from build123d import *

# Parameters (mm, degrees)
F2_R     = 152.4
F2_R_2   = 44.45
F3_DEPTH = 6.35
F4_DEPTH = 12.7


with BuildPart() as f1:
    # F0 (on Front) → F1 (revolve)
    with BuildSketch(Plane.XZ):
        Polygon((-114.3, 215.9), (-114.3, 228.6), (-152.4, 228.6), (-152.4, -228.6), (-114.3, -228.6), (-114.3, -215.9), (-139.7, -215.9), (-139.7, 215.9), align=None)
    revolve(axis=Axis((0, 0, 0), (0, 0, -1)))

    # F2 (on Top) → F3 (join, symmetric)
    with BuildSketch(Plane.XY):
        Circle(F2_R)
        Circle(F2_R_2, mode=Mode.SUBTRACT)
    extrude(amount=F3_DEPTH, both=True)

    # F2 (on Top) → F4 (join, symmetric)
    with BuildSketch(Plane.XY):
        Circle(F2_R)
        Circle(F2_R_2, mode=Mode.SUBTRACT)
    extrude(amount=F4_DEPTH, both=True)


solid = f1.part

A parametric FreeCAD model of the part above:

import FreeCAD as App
import Part
import Sketcher
from FreeCAD import Vector
Q = App.Units.Quantity

doc = App.newDocument("Part")
params = doc.addObject("Spreadsheet::Sheet", "Params")
for row, (alias, value) in enumerate([
    ("sketch1_width", "1 in"),
    ("sketch1_height", "18 in"),
    ("sketch1_height2", "17 in"),
    ("sketch1_width2", "1.5 in"),
    ("revolution_angle", "360 deg"),
    ("sketch2_diameter", "12 in"),
    ("sketch2_diameter2", "3.5 in"),
    ("pad1_length", "0.5 in"),
    ("sketch3_diameter", "12 in"),
    ("sketch3_diameter2", "3.5 in"),
    ("pad2_length", "1 in"),
], start=1):
    params.set(f"A{row}", alias)
    params.set(f"B{row}", "=" + value)
    params.setAlias(f"B{row}", alias)

body = doc.addObject("PartDesign::Body", "Body")

sketch1 = body.newObject("Sketcher::SketchObject", "Sketch")
sketch1.AttachmentSupport = (doc.getObject("XZ_Plane"), [""])
sketch1.MapMode = "FlatFace"
sketch1.addGeometry([
    Part.LineSegment(Vector(-114, 216, 0), Vector(-114, 229, 0)),
    Part.LineSegment(Vector(-114, 229, 0), Vector(-152, 229, 0)),
    Part.LineSegment(Vector(-152, 229, 0), Vector(-152, -229, 0)),
    Part.LineSegment(Vector(-152, -229, 0), Vector(-114, -229, 0)),
    Part.LineSegment(Vector(-114, -229, 0), Vector(-114, -216, 0)),
    Part.LineSegment(Vector(-114, -216, 0), Vector(-140, -216, 0)),
    Part.LineSegment(Vector(-140, -216, 0), Vector(-140, 216, 0)),
    Part.LineSegment(Vector(-140, 216, 0), Vector(-114, 216, 0)),
], False)
sketch1.addConstraint([
    Sketcher.Constraint("Coincident", 0, 2, 1, 1),
    Sketcher.Constraint("Coincident", 1, 2, 2, 1),
    Sketcher.Constraint("Coincident", 2, 2, 3, 1),
    Sketcher.Constraint("Coincident", 3, 2, 4, 1),
    Sketcher.Constraint("Coincident", 4, 2, 5, 1),
    Sketcher.Constraint("Coincident", 5, 2, 6, 1),
    Sketcher.Constraint("Coincident", 6, 2, 7, 1),
    Sketcher.Constraint("Coincident", 7, 2, 0, 1),
    Sketcher.Constraint("Vertical", 0),
    Sketcher.Constraint("Horizontal", 1),
    Sketcher.Constraint("Vertical", 2),
    Sketcher.Constraint("Horizontal", 3),
    Sketcher.Constraint("Vertical", 4),
    Sketcher.Constraint("Horizontal", 5),
    Sketcher.Constraint("Vertical", 6),
    Sketcher.Constraint("Horizontal", 7),
    Sketcher.Constraint("Symmetric", 0, 2, 3, 2, -1),
    Sketcher.Constraint("Equal", 0, 4),
    Sketcher.Constraint("DistanceX", 5, 2, 5, 1, Q("1 in")),
    Sketcher.Constraint("DistanceY", 2, 2, 2, 1, Q("18 in")),
    Sketcher.Constraint("DistanceY", 6, 1, 6, 2, Q("17 in")),
    Sketcher.Constraint("DistanceX", 1, 2, 1, 1, Q("1.5 in")),
    Sketcher.Constraint("DistanceX", 1, 2, -1, 1, Q("6 in")),
])
sketch1.setExpression("Constraints[18]", "Params.sketch1_width")
sketch1.setExpression("Constraints[19]", "Params.sketch1_height")
sketch1.setExpression("Constraints[20]", "Params.sketch1_height2")
sketch1.setExpression("Constraints[21]", "Params.sketch1_width2")
revolution = body.newObject("PartDesign::Revolution", "Revolution")
revolution.Profile = sketch1
revolution.ReferenceAxis = (sketch1, ["V_Axis"])
revolution.setExpression("Angle", "Params.revolution_angle")

sketch2 = body.newObject("Sketcher::SketchObject", "Sketch001")
sketch2.AttachmentSupport = (doc.getObject("XY_Plane"), [""])
sketch2.MapMode = "FlatFace"
sketch2.addGeometry([
    Part.Circle(Vector(0, 0, 0), Vector(0, 0, 1), 152),
    Part.Circle(Vector(0, 0, 0), Vector(0, 0, 1), 44),
], False)
sketch2.addConstraint([
    Sketcher.Constraint("Coincident", 0, 3, -1, 1),
    Sketcher.Constraint("Coincident", 1, 3, -1, 1),
    Sketcher.Constraint("Diameter", 0, Q("12 in")),
    Sketcher.Constraint("Diameter", 1, Q("3.5 in")),
])
sketch2.setExpression("Constraints[2]", "Params.sketch2_diameter")
sketch2.setExpression("Constraints[3]", "Params.sketch2_diameter2")
pad1 = body.newObject("PartDesign::Pad", "Pad")
pad1.Profile = sketch2
pad1.setExpression("Length", "Params.pad1_length")
pad1.Midplane = True

sketch3 = body.newObject("Sketcher::SketchObject", "Sketch002")
sketch3.AttachmentSupport = (doc.getObject("XY_Plane"), [""])
sketch3.MapMode = "FlatFace"
sketch3.addGeometry([
    Part.Circle(Vector(0, 0, 0), Vector(0, 0, 1), 152),
    Part.Circle(Vector(0, 0, 0), Vector(0, 0, 1), 44),
], False)
sketch3.addConstraint([
    Sketcher.Constraint("Coincident", 0, 3, -1, 1),
    Sketcher.Constraint("Coincident", 1, 3, -1, 1),
    Sketcher.Constraint("Diameter", 0, Q("12 in")),
    Sketcher.Constraint("Diameter", 1, Q("3.5 in")),
])
sketch3.setExpression("Constraints[2]", "Params.sketch3_diameter")
sketch3.setExpression("Constraints[3]", "Params.sketch3_diameter2")
pad2 = body.newObject("PartDesign::Pad", "Pad001")
pad2.Profile = sketch3
pad2.setExpression("Length", "Params.pad2_length")
pad2.Midplane = True

doc.recompute()
